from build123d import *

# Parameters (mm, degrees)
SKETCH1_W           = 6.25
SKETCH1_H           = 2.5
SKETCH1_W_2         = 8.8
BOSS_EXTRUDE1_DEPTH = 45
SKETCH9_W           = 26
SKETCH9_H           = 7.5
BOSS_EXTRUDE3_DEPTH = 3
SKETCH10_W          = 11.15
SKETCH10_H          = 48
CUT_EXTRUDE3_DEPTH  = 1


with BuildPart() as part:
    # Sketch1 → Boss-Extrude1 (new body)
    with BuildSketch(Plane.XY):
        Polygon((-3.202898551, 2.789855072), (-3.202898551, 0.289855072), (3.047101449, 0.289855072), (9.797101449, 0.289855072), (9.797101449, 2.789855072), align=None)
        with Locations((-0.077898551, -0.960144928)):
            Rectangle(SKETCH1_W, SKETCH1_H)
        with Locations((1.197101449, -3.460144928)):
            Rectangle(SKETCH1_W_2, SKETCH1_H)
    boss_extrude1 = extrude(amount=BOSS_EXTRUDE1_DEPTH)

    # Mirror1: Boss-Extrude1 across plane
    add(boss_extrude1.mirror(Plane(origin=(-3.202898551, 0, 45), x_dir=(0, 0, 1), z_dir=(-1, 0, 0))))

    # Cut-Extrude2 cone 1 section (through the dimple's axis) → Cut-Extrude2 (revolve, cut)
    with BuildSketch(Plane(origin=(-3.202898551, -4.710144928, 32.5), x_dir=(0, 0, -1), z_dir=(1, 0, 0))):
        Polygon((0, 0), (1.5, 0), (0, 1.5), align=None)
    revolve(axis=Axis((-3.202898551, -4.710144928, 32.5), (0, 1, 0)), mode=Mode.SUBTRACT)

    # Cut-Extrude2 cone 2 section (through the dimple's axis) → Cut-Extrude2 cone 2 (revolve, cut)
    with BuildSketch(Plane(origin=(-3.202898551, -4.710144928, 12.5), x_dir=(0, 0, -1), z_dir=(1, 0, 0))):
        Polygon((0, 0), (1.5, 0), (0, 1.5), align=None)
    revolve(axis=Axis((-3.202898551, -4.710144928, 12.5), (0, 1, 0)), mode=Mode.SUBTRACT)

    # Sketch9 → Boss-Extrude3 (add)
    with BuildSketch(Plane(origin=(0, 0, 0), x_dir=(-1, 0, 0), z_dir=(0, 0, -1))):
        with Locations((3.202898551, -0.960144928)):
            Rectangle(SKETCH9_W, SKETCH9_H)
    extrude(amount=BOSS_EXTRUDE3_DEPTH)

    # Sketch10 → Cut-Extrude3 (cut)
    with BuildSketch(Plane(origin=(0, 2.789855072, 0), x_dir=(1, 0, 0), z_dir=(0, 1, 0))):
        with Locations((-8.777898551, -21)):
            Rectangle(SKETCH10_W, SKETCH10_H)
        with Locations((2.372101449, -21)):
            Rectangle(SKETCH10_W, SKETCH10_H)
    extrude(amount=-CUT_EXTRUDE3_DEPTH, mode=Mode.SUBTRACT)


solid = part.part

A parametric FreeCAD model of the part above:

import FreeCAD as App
import Part
import Sketcher
from FreeCAD import Vector
Q = App.Units.Quantity


def add_polygon(sketch, points):
    """Adds a closed chain of lines whose ends are joined by coincident constraints."""
    first, n = sketch.GeometryCount, len(points)
    for a, b in zip(points, points[1:] + points[:1]):
        sketch.addGeometry(Part.LineSegment(App.Vector(*a, 0), App.Vector(*b, 0)), False)
    for i in range(n):
        sketch.addConstraint(Sketcher.Constraint("Coincident", first + i, 2, first + (i + 1) % n, 1))

doc = App.newDocument("Part")
body = doc.addObject("PartDesign::Body", "Body")

# Sketch on XY plane
sketch1 = doc.addObject("Sketcher::SketchObject", "Sketch")
body.addObject(sketch1)
sketch1.AttachmentSupport = (doc.XY_Plane, [""])
sketch1.MapMode = "FlatFace"
add_polygon(sketch1, [(-3.2, 2.8), (-3.2, -4.7), (5.6, -4.7), (5.6, -2.2), (3, -2.2), (3, 0.3), (9.8, 0.3), (9.8, 2.8)])  # lines 0-7
sketch1.addConstraint(Sketcher.Constraint("Vertical", 0))
sketch1.addConstraint(Sketcher.Constraint("Horizontal", 1))
sketch1.addConstraint(Sketcher.Constraint("Vertical", 2))
sketch1.addConstraint(Sketcher.Constraint("Horizontal", 3))
sketch1.addConstraint(Sketcher.Constraint("Vertical", 4))
sketch1.addConstraint(Sketcher.Constraint("Horizontal", 5))
sketch1.addConstraint(Sketcher.Constraint("Vertical", 6))
sketch1.addConstraint(Sketcher.Constraint("Horizontal", 7))
sketch1.addConstraint(Sketcher.Constraint("Equal", 2, 4))
sketch1.addConstraint(Sketcher.Constraint("Equal", 4, 6))
sketch1.addConstraint(Sketcher.Constraint("DistanceX", 7, 2, 7, 1, Q("13 mm")))
sketch1.addConstraint(Sketcher.Constraint("DistanceX", 1, 1, 1, 2, Q("8.8 mm")))
sketch1.addConstraint(Sketcher.Constraint("DistanceY", 0, 2, 0, 1, Q("7.5 mm")))
sketch1.addConstraint(Sketcher.Constraint("DistanceX", 3, 2, 3, 1, Q("2.55 mm")))
sketch1.addConstraint(Sketcher.Constraint("DistanceX", 0, 2, -1, 1, Q("3.202899 mm")))
sketch1.addConstraint(Sketcher.Constraint("DistanceY", 0, 2, -1, 1, Q("4.710145 mm")))
pad1 = doc.addObject("PartDesign::Pad", "Pad")
body.addObject(pad1)
pad1.Profile = sketch1
pad1.Length = 45
doc.recompute()

datumplane = doc.addObject("PartDesign::Plane", "DatumPlane")
body.addObject(datumplane)
datumplane.AttachmentSupport = (doc.YZ_Plane, [""])
datumplane.MapMode = "FlatFace"
datumplane.AttachmentOffset = App.Placement(Vector(0, 0, -3.202899), App.Rotation())
mirrored = doc.addObject("PartDesign::Mirrored", "Mirrored")
body.addObject(mirrored)
mirrored.Originals = [pad1]
mirrored.MirrorPlane = (datumplane, [""])
body.Tip = mirrored

# Sketch on YZ plane
sketch2 = doc.addObject("Sketcher::SketchObject", "Sketch001")
body.addObject(sketch2)
sketch2.AttachmentSupport = (doc.YZ_Plane, [""])
sketch2.MapMode = "FlatFace"
sketch2.AttachmentOffset = App.Placement(Vector(0, 0, -3.202899), App.Rotation())
add_polygon(sketch2, [(-4.7, 32.5), (-4.7, 31), (-3.2, 32.5)])  # lines 0-2
sketch2.addGeometry(Part.LineSegment(Vector(-4.7, 32.5, 0), Vector(-3.2, 32.5, 0)), True)  # axis
sketch2.addConstraint(Sketcher.Constraint("Vertical", 0))
sketch2.addConstraint(Sketcher.Constraint("Horizontal", 2))
sketch2.addConstraint(Sketcher.Constraint("Horizontal", 3))
sketch2.addConstraint(Sketcher.Constraint("Coincident", 3, 1, 2, 2))
sketch2.addConstraint(Sketcher.Constraint("Equal", 2, 3))
sketch2.addConstraint(Sketcher.Constraint("Equal", 3, 0))
sketch2.addConstraint(Sketcher.Constraint("DistanceX", 2, 2, 2, 1, Q("1.5 mm")))
sketch2.addConstraint(Sketcher.Constraint("DistanceY", -1, 1, 0, 2, Q("31 mm")))
sketch2.addConstraint(Sketcher.Constraint("DistanceX", 0, 2, -1, 1, Q("4.710145 mm")))
groove = doc.addObject("PartDesign::Groove", "Groove")
body.addObject(groove)
groove.Profile = sketch2
groove.ReferenceAxis = (sketch2, ["Axis0"])
groove.Angle = 360

# Sketch on YZ plane
sketch3 = doc.addObject("Sketcher::SketchObject", "Sketch002")
body.addObject(sketch3)
sketch3.AttachmentSupport = (doc.YZ_Plane, [""])
sketch3.MapMode = "FlatFace"
sketch3.AttachmentOffset = App.Placement(Vector(0, 0, -3.202899), App.Rotation())
add_polygon(sketch3, [(-4.7, 12.5), (-4.7, 11), (-3.2, 12.5)])  # lines 0-2
sketch3.addGeometry(Part.LineSegment(Vector(-4.7, 12.5, 0), Vector(-3.2, 12.5, 0)), True)  # axis
sketch3.addConstraint(Sketcher.Constraint("Vertical", 0))
sketch3.addConstraint(Sketcher.Constraint("Horizontal", 2))
sketch3.addConstraint(Sketcher.Constraint("Horizontal", 3))
sketch3.addConstraint(Sketcher.Constraint("Coincident", 3, 1, 2, 2))
sketch3.addConstraint(Sketcher.Constraint("Equal", 2, 3))
sketch3.addConstraint(Sketcher.Constraint("Equal", 3, 0))
sketch3.addConstraint(Sketcher.Constraint("DistanceX", 2, 2, 2, 1, Q("1.5 mm")))
sketch3.addConstraint(Sketcher.Constraint("DistanceY", -1, 1, 0, 2, Q("11 mm")))
sketch3.addConstraint(Sketcher.Constraint("DistanceX", 0, 2, -1, 1, Q("4.710145 mm")))
groove2 = doc.addObject("PartDesign::Groove", "Groove001")
body.addObject(groove2)
groove2.Profile = sketch3
groove2.ReferenceAxis = (sketch3, ["Axis0"])
groove2.Angle = 360

# Sketch on XY plane
sketch4 = doc.addObject("Sketcher::SketchObject", "Sketch003")
body.addObject(sketch4)
sketch4.AttachmentSupport = (doc.XY_Plane, [""])
sketch4.MapMode = "FlatFace"
add_polygon(sketch4, [(10, 3), (10, -5), (-16, -5), (-16, 3)])  # lines 0-3
sketch4.addConstraint(Sketcher.Constraint("Vertical", 0))
sketch4.addConstraint(Sketcher.Constraint("Horizontal", 1))
sketch4.addConstraint(Sketcher.Constraint("Vertical", 2))
sketch4.addConstraint(Sketcher.Constraint("Horizontal", 3))
sketch4.addConstraint(Sketcher.Constraint("DistanceX", 1, 2, 1, 1, Q("26 mm")))
sketch4.addConstraint(Sketcher.Constraint("DistanceY", 0, 2, 0, 1, Q("7.5 mm")))
sketch4.addConstraint(Sketcher.Constraint("DistanceX", -1, 1, 0, 2, Q("9.797101 mm")))
sketch4.addConstraint(Sketcher.Constraint("DistanceY", 0, 2, -1, 1, Q("4.710145 mm")))
pad2 = doc.addObject("PartDesign::Pad", "Pad001")
body.addObject(pad2)
pad2.Profile = sketch4
pad2.Length = 3
pad2.Reversed = True

# Sketch on XZ plane
sketch5 = doc.addObject("Sketcher::SketchObject", "Sketch004")
body.addObject(sketch5)
sketch5.AttachmentSupport = (doc.XZ_Plane, [""])
sketch5.MapMode = "FlatFace"
sketch5.AttachmentOffset = App.Placement(Vector(0, 0, -2.789855), App.Rotation())
add_polygon(sketch5, [(-14, -3), (-14, 45), (8, 45), (8, -3)])  # lines 0-3
sketch5.addConstraint(Sketcher.Constraint("Vertical", 0))
sketch5.addConstraint(Sketcher.Constraint("Horizontal", 1))
sketch5.addConstraint(Sketcher.Constraint("Vertical", 2))
sketch5.addConstraint(Sketcher.Constraint("Horizontal", 3))
sketch5.addConstraint(Sketcher.Constraint("DistanceY", 0, 1, 0, 2, Q("48 mm")))
sketch5.addConstraint(Sketcher.Constraint("DistanceX", 1, 1, 1, 2, Q("22.3 mm")))
sketch5.addConstraint(Sketcher.Constraint("DistanceY", -1, 1, 0, 2, Q("45 mm")))
sketch5.addConstraint(Sketcher.Constraint("DistanceX", 0, 2, -1, 1, Q("14.352899 mm")))
pocket1 = doc.addObject("PartDesign::Pocket", "Pocket")
body.addObject(pocket1)
pocket1.Profile = sketch5
pocket1.Length = 1
pocket1.Reversed = True

doc.recompute()
